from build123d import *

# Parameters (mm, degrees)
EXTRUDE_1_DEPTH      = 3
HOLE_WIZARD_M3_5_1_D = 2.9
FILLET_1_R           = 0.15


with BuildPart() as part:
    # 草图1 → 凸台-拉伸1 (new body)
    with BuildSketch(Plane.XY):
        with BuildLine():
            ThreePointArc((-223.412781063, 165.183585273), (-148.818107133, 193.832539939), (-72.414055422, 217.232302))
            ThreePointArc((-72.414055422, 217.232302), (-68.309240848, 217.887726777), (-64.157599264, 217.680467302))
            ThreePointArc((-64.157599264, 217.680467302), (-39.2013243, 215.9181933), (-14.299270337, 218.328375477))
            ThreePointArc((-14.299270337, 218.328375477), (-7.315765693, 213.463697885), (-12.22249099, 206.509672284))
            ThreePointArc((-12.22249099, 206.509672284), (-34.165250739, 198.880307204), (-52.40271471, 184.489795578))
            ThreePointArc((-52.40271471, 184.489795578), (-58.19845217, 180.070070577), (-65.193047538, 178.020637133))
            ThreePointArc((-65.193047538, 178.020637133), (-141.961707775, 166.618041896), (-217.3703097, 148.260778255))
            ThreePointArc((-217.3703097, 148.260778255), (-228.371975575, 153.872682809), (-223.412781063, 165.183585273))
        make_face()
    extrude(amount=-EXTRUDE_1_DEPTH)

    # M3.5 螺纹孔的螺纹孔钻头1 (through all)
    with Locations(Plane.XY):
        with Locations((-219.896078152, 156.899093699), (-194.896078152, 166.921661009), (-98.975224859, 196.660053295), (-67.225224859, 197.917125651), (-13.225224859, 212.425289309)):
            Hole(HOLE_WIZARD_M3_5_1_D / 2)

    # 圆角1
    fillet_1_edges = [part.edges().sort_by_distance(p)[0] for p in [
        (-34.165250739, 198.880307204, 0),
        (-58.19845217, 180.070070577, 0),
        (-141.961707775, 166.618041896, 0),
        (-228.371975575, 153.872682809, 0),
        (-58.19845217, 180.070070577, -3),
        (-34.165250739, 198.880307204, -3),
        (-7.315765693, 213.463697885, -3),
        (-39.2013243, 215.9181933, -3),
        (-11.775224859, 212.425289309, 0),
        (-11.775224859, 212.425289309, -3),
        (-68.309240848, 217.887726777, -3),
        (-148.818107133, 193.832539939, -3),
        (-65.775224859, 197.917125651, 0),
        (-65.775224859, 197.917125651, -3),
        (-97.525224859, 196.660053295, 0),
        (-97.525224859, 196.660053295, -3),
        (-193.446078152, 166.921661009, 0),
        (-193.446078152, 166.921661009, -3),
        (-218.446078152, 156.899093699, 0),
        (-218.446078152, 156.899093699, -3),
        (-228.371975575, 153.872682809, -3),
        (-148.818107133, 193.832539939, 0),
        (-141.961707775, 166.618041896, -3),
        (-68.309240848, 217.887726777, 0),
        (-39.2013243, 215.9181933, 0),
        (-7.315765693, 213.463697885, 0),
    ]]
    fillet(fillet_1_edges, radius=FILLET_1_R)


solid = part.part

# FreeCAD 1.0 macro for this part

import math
import FreeCAD as App
import Part
import Sketcher


def edges_at(feature, points):
    """Names of the edges that pass closest to the given points."""
    edges = feature.Shape.Edges
    near = lambda p: min(range(len(edges)), key=lambda i: edges[i].distToShape(Part.Vertex(*p))[0])
    return sorted({f"Edge{near(p) + 1}" for p in points})

doc = App.newDocument("Part")
body = doc.addObject("PartDesign::Body", "Body")

# Sketch on XY plane
sketch1 = body.newObject("Sketcher::SketchObject", "Sketch")
sketch1.AttachmentSupport = (doc.getObject("XY_Plane"), [""])
sketch1.MapMode = "FlatFace"
sketch1.addGeometry([
    Part.ArcOfCircle(Part.Circle(App.Vector(226, -893, 0), App.Vector(0, 0, 1), 1150), math.radians(105.04), math.radians(113)),  # 0
    Part.ArcOfCircle(Part.Circle(App.Vector(-220, 157, 0), App.Vector(0, 0, 1), 9), math.radians(113), math.radians(286)),  # 1
    Part.ArcOfCircle(Part.Circle(App.Vector(21, -668, 0), App.Vector(0, 0, 1), 850), math.radians(95.83), math.radians(106.3)),  # 2
    Part.ArcOfCircle(Part.Circle(App.Vector(-67, 198, 0), App.Vector(0, 0, 1), 20), math.radians(-84), math.radians(-42)),  # 3
    Part.ArcOfCircle(Part.Circle(App.Vector(-1, 137, 0), App.Vector(0, 0, 1), 70), math.radians(100), math.radians(138)),  # 4
    Part.ArcOfCircle(Part.Circle(App.Vector(-13, 212, 0), App.Vector(0, 0, 1), 6), math.radians(-80), math.radians(100)),  # 5
    Part.ArcOfCircle(Part.Circle(App.Vector(-41, 366, 0), App.Vector(0, 0, 1), 150), math.radians(-98.82), math.radians(-79.69)),  # 6
    Part.ArcOfCircle(Part.Circle(App.Vector(-67, 198, 0), App.Vector(0, 0, 1), 20), math.radians(81), math.radians(105)),  # 7
], False)
sketch1.addConstraint([
    Sketcher.Constraint("Tangent", 0, 2, 1, 1),
    Sketcher.Constraint("Tangent", 1, 2, 2, 2),
    Sketcher.Constraint("Tangent", 2, 1, 3, 1),
    Sketcher.Constraint("Tangent", 3, 2, 4, 2),
    Sketcher.Constraint("Tangent", 4, 1, 5, 1),
    Sketcher.Constraint("Tangent", 5, 2, 6, 2),
    Sketcher.Constraint("Tangent", 6, 1, 7, 1),
    Sketcher.Constraint("Tangent", 7, 2, 0, 1),
    Sketcher.Constraint("Coincident", 7, 3, 3, 3),
    Sketcher.Constraint("Equal", 3, 7),
    Sketcher.Constraint("Radius", 0, 1150.0),
    Sketcher.Constraint("Radius", 1, 9.0),
    Sketcher.Constraint("Radius", 2, 850.0),
    Sketcher.Constraint("Radius", 3, 20.0),
    Sketcher.Constraint("Radius", 4, 70.0),
    Sketcher.Constraint("Radius", 5, 6.0),
    Sketcher.Constraint("Radius", 6, 150.0),
    Sketcher.Constraint("DistanceX", 3, 3, 5, 3, 54.0),
    Sketcher.Constraint("DistanceX", 6, 1, -1, 1, 64.157599),
    Sketcher.Constraint("DistanceY", 0, 3, -1, 1, 893.390338),
    Sketcher.Constraint("DistanceX", 1, 3, -1, 1, 219.896078),
    Sketcher.Constraint("DistanceX", -1, 1, 2, 3, 21.174489),
    Sketcher.Constraint("DistanceX", 4, 3, -1, 1, 0.523929),
])
pad1 = body.newObject("PartDesign::Pad", "Pad")
pad1.Profile = sketch1
pad1.Length = 3
pad1.Reversed = True

# Sketch on XY plane
sketch2 = body.newObject("Sketcher::SketchObject", "Sketch001")
sketch2.AttachmentSupport = (doc.getObject("XY_Plane"), [""])
sketch2.MapMode = "FlatFace"
sketch2.addGeometry([
    Part.Circle(App.Vector(-219.9, 156.9, 0), App.Vector(0, 0, 1), 1.4),  # 0
    Part.Circle(App.Vector(-194.9, 166.9, 0), App.Vector(0, 0, 1), 1.4),  # 1
    Part.Circle(App.Vector(-99, 196.7, 0), App.Vector(0, 0, 1), 1.4),  # 2
    Part.Circle(App.Vector(-67.2, 197.9, 0), App.Vector(0, 0, 1), 1.4),  # 3
    Part.Circle(App.Vector(-13.2, 212.4, 0), App.Vector(0, 0, 1), 1.4),  # 4
], False)
sketch2.addConstraint([
    Sketcher.Constraint("Equal", 0, 1),
    Sketcher.Constraint("Equal", 1, 2),
    Sketcher.Constraint("Equal", 2, 3),
    Sketcher.Constraint("Equal", 3, 4),
    Sketcher.Constraint("Diameter", 0, 2.9),
    Sketcher.Constraint("DistanceX", 0, 3, 1, 3, 25.0),
    Sketcher.Constraint("DistanceX", 3, 3, 4, 3, 54.0),
    Sketcher.Constraint("DistanceX", 2, 3, 3, 3, 31.75),
    Sketcher.Constraint("DistanceX", 0, 3, -1, 1, 219.896078),
    Sketcher.Constraint("DistanceY", -1, 1, 1, 3, 166.921661),
    Sketcher.Constraint("DistanceY", -1, 1, 4, 3, 212.425289),
    Sketcher.Constraint("DistanceY", 0, 3, 2, 3, 39.76096),
    Sketcher.Constraint("DistanceY", 0, 3, 3, 3, 41.018032),
    Sketcher.Constraint("DistanceY", -1, 1, 0, 3, 156.899094),
    Sketcher.Constraint("DistanceX", 2, 3, -1, 1, 98.975225),
])
doc.recompute()
hole = body.newObject("PartDesign::Hole", "Hole")
hole.Profile = sketch2
hole.ThreadType = "None"
hole.Diameter = 2.9
hole.DepthType = "ThroughAll"
doc.recompute()

fillet = body.newObject("PartDesign::Fillet", "Fillet")
fillet.Base = (hole, edges_at(hole, [
    (-34.165, 198.88, 0),
    (-58.198, 180.07, 0),
    (-141.962, 166.618, 0),
    (-228.372, 153.873, 0),
    (-58.198, 180.07, -3),
    (-34.165, 198.88, -3),
    (-7.316, 213.464, -3),
    (-39.201, 215.918, -3),
    (-11.775, 212.425, 0),
    (-11.775, 212.425, -3),
    (-68.309, 217.888, -3),
    (-148.818, 193.833, -3),
    (-65.775, 197.917, 0),
    (-65.775, 197.917, -3),
    (-97.525, 196.66, 0),
    (-97.525, 196.66, -3),
    (-193.446, 166.922, 0),
    (-193.446, 166.922, -3),
    (-218.446, 156.899, 0),
    (-218.446, 156.899, -3),
    (-228.372, 153.873, -3),
    (-148.818, 193.833, 0),
    (-141.962, 166.618, -3),
    (-68.309, 217.888, 0),
    (-39.201, 215.918, 0),
    (-7.316, 213.464, 0),
]))
fillet.Radius = 0.15

doc.recompute()
